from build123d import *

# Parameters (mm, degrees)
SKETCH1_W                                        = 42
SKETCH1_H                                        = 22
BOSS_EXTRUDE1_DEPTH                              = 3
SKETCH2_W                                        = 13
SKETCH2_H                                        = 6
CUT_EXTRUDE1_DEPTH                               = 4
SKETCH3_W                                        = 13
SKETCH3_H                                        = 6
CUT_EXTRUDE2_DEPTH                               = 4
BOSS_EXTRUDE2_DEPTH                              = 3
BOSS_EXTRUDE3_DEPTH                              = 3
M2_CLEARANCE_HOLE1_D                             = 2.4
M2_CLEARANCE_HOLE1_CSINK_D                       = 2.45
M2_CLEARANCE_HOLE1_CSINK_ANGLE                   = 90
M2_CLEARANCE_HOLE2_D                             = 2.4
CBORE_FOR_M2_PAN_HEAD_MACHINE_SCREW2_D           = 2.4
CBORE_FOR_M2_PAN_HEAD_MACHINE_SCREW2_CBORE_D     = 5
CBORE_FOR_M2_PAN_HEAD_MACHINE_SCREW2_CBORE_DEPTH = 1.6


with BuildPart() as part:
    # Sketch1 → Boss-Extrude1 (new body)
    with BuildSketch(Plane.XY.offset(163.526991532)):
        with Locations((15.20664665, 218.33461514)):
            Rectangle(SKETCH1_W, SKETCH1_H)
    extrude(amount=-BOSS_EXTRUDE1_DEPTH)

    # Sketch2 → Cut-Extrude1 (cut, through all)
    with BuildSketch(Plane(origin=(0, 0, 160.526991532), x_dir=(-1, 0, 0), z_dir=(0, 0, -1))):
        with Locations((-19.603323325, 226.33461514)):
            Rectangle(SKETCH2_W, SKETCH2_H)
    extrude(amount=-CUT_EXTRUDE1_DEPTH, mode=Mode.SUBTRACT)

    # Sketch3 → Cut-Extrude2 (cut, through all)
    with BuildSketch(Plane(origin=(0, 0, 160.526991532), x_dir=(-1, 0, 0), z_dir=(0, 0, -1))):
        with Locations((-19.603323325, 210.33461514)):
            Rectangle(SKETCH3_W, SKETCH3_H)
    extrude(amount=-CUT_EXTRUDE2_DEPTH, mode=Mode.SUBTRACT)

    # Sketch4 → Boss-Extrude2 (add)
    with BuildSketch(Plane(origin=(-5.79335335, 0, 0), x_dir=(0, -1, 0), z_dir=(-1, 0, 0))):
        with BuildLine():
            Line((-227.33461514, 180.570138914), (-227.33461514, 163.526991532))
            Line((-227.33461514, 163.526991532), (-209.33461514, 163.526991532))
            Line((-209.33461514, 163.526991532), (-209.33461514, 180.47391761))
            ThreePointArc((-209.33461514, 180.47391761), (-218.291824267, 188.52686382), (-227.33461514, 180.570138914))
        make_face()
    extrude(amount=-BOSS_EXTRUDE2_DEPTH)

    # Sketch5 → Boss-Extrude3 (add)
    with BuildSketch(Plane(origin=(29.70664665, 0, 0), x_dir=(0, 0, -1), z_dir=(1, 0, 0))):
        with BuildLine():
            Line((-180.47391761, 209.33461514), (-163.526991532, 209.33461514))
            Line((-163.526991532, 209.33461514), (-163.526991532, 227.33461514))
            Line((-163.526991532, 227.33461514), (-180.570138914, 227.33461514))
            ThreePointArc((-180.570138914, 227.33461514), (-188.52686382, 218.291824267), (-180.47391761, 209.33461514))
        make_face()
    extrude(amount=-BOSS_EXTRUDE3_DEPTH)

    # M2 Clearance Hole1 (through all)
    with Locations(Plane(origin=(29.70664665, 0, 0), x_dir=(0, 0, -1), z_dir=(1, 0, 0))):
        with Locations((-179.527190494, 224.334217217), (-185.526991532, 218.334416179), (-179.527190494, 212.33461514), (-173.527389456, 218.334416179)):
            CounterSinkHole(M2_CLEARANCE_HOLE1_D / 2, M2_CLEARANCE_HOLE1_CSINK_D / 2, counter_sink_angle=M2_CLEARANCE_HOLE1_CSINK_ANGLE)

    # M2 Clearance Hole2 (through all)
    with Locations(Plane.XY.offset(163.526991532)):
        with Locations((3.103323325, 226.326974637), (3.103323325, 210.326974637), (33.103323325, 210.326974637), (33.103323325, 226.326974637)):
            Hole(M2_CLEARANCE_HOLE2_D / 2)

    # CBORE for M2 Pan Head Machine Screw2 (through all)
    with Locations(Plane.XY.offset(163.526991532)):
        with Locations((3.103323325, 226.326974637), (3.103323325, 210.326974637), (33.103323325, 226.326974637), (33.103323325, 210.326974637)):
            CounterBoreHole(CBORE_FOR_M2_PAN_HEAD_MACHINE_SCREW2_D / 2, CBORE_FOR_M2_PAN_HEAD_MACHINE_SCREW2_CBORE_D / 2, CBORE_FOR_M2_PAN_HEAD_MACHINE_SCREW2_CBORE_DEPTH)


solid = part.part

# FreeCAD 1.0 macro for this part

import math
import FreeCAD as App
import Part
import Sketcher


def add_polygon(sketch, points):
    """Adds a closed chain of lines whose ends are joined by coincident constraints."""
    first, n = sketch.GeometryCount, len(points)
    for a, b in zip(points, points[1:] + points[:1]):
        sketch.addGeometry(Part.LineSegment(App.Vector(*a, 0), App.Vector(*b, 0)), False)
    for i in range(n):
        sketch.addConstraint(Sketcher.Constraint("Coincident", first + i, 2, first + (i + 1) % n, 1))

doc = App.newDocument("Part")
body = doc.addObject("PartDesign::Body", "Body")

# Sketch on XY plane
sketch1 = body.newObject("Sketcher::SketchObject", "Sketch")
sketch1.AttachmentSupport = (doc.getObject("XY_Plane"), [""])
sketch1.MapMode = "FlatFace"
sketch1.AttachmentOffset = App.Placement(App.Vector(0, 0, 163.526992), App.Rotation())
add_polygon(sketch1, [(-5.793353, 229.334615), (-5.793353, 207.334615), (36.206647, 207.334615), (36.206647, 229.334615)])  # lines 0-3
sketch1.addConstraint(Sketcher.Constraint("Vertical", 0))
sketch1.addConstraint(Sketcher.Constraint("Horizontal", 1))
sketch1.addConstraint(Sketcher.Constraint("Vertical", 2))
sketch1.addConstraint(Sketcher.Constraint("Horizontal", 3))
sketch1.addConstraint(Sketcher.Constraint("DistanceX", 1, 1, 1, 2, 42.0))
sketch1.addConstraint(Sketcher.Constraint("DistanceY", 0, 2, 0, 1, 22.0))
sketch1.addConstraint(Sketcher.Constraint("DistanceX", 0, 2, -1, 1, 5.793353))
sketch1.addConstraint(Sketcher.Constraint("DistanceY", -1, 1, 0, 2, 207.334615))
pad1 = body.newObject("PartDesign::Pad", "Pad")
pad1.Profile = sketch1
pad1.Length = 3
pad1.Reversed = True

# Sketch on XY plane
sketch2 = body.newObject("Sketcher::SketchObject", "Sketch001")
sketch2.AttachmentSupport = (doc.getObject("XY_Plane"), [""])
sketch2.MapMode = "FlatFace"
sketch2.AttachmentOffset = App.Placement(App.Vector(0, 0, 160.526992), App.Rotation())
add_polygon(sketch2, [(26.103323, 229.334615), (26.103323, 223.334615), (13.103323, 223.334615), (13.103323, 229.334615)])  # lines 0-3
sketch2.addConstraint(Sketcher.Constraint("Vertical", 0))
sketch2.addConstraint(Sketcher.Constraint("Horizontal", 1))
sketch2.addConstraint(Sketcher.Constraint("Vertical", 2))
sketch2.addConstraint(Sketcher.Constraint("Horizontal", 3))
sketch2.addConstraint(Sketcher.Constraint("DistanceX", 1, 2, 1, 1, 13.0))
sketch2.addConstraint(Sketcher.Constraint("DistanceY", 0, 2, 0, 1, 6.0))
sketch2.addConstraint(Sketcher.Constraint("DistanceX", -1, 1, 0, 2, 26.103323))
sketch2.addConstraint(Sketcher.Constraint("DistanceY", -1, 1, 0, 2, 223.334615))
pocket1 = body.newObject("PartDesign::Pocket", "Pocket")
pocket1.Profile = sketch2
pocket1.Type = "ThroughAll"
pocket1.Reversed = True

# Sketch on XY plane
sketch3 = body.newObject("Sketcher::SketchObject", "Sketch002")
sketch3.AttachmentSupport = (doc.getObject("XY_Plane"), [""])
sketch3.MapMode = "FlatFace"
sketch3.AttachmentOffset = App.Placement(App.Vector(0, 0, 160.526992), App.Rotation())
add_polygon(sketch3, [(26.103323, 213.334615), (26.103323, 207.334615), (13.103323, 207.334615), (13.103323, 213.334615)])  # lines 0-3
sketch3.addConstraint(Sketcher.Constraint("Vertical", 0))
sketch3.addConstraint(Sketcher.Constraint("Horizontal", 1))
sketch3.addConstraint(Sketcher.Constraint("Vertical", 2))
sketch3.addConstraint(Sketcher.Constraint("Horizontal", 3))
sketch3.addConstraint(Sketcher.Constraint("DistanceX", 1, 2, 1, 1, 13.0))
sketch3.addConstraint(Sketcher.Constraint("DistanceY", 0, 2, 0, 1, 6.0))
sketch3.addConstraint(Sketcher.Constraint("DistanceX", -1, 1, 0, 2, 26.103323))
sketch3.addConstraint(Sketcher.Constraint("DistanceY", -1, 1, 0, 2, 207.334615))
pocket2 = body.newObject("PartDesign::Pocket", "Pocket001")
pocket2.Profile = sketch3
pocket2.Type = "ThroughAll"
pocket2.Reversed = True

# Sketch on YZ plane
sketch4 = body.newObject("Sketcher::SketchObject", "Sketch003")
sketch4.AttachmentSupport = (doc.getObject("YZ_Plane"), [""])
sketch4.MapMode = "FlatFace"
sketch4.AttachmentOffset = App.Placement(App.Vector(0, 0, -5.793353), App.Rotation())
sketch4.addGeometry(Part.LineSegment(App.Vector(227.334615, 180.570139, 0), App.Vector(227.334615, 163.526992, 0)), False)
sketch4.addGeometry(Part.LineSegment(App.Vector(227.334615, 163.526992, 0), App.Vector(209.334615, 163.526992, 0)), False)
sketch4.addGeometry(Part.LineSegment(App.Vector(209.334615, 163.526992, 0), App.Vector(209.334615, 180.473918, 0)), False)
sketch4.addGeometry(Part.ArcOfCircle(Part.Circle(App.Vector(218.340266, 179.465004, 0), App.Vector(0, 0, 1), 9.061989), math.radians(7.004816), math.radians(173.607742)), False)
sketch4.addConstraint(Sketcher.Constraint("Coincident", 0, 2, 1, 1))
sketch4.addConstraint(Sketcher.Constraint("Coincident", 1, 2, 2, 1))
sketch4.addConstraint(Sketcher.Constraint("Coincident", 2, 2, 3, 2))
sketch4.addConstraint(Sketcher.Constraint("Coincident", 3, 1, 0, 1))
sketch4.addConstraint(Sketcher.Constraint("Vertical", 0))
sketch4.addConstraint(Sketcher.Constraint("Horizontal", 1))
sketch4.addConstraint(Sketcher.Constraint("Vertical", 2))
sketch4.addConstraint(Sketcher.Constraint("DistanceX", 1, 2, 1, 1, 18.0))
sketch4.addConstraint(Sketcher.Constraint("Radius", 3, 9.061989))
sketch4.addConstraint(Sketcher.Constraint("DistanceY", 0, 2, 0, 1, 17.043147))
sketch4.addConstraint(Sketcher.Constraint("DistanceY", 2, 1, 2, 2, 16.946926))
sketch4.addConstraint(Sketcher.Constraint("DistanceY", -1, 1, 0, 2, 163.526992))
sketch4.addConstraint(Sketcher.Constraint("DistanceX", -1, 1, 3, 3, 218.340266))
pad2 = body.newObject("PartDesign::Pad", "Pad001")
pad2.Profile = sketch4
pad2.Length = 3

# Sketch on YZ plane
sketch5 = body.newObject("Sketcher::SketchObject", "Sketch004")
sketch5.AttachmentSupport = (doc.getObject("YZ_Plane"), [""])
sketch5.MapMode = "FlatFace"
sketch5.AttachmentOffset = App.Placement(App.Vector(0, 0, 29.706647), App.Rotation())
sketch5.addGeometry(Part.LineSegment(App.Vector(209.334615, 180.473918, 0), App.Vector(209.334615, 163.526992, 0)), False)
sketch5.addGeometry(Part.LineSegment(App.Vector(209.334615, 163.526992, 0), App.Vector(227.334615, 163.526992, 0)), False)
sketch5.addGeometry(Part.LineSegment(App.Vector(227.334615, 163.526992, 0), App.Vector(227.334615, 180.570139, 0)), False)
sketch5.addGeometry(Part.ArcOfCircle(Part.Circle(App.Vector(218.340266, 179.465004, 0), App.Vector(0, 0, 1), 9.061989), math.radians(7.004816), math.radians(173.607742)), False)
sketch5.addConstraint(Sketcher.Constraint("Coincident", 0, 2, 1, 1))
sketch5.addConstraint(Sketcher.Constraint("Coincident", 1, 2, 2, 1))
sketch5.addConstraint(Sketcher.Constraint("Coincident", 2, 2, 3, 1))
sketch5.addConstraint(Sketcher.Constraint("Coincident", 3, 2, 0, 1))
sketch5.addConstraint(Sketcher.Constraint("Vertical", 0))
sketch5.addConstraint(Sketcher.Constraint("Horizontal", 1))
sketch5.addConstraint(Sketcher.Constraint("Vertical", 2))
sketch5.addConstraint(Sketcher.Constraint("DistanceX", 1, 1, 1, 2, 18.0))
sketch5.addConstraint(Sketcher.Constraint("Radius", 3, 9.061989))
sketch5.addConstraint(Sketcher.Constraint("DistanceY", 0, 2, 0, 1, 16.946926))
sketch5.addConstraint(Sketcher.Constraint("DistanceY", 2, 1, 2, 2, 17.043147))
sketch5.addConstraint(Sketcher.Constraint("DistanceY", -1, 1, 0, 2, 163.526992))
sketch5.addConstraint(Sketcher.Constraint("DistanceX", -1, 1, 3, 3, 218.340266))
pad3 = body.newObject("PartDesign::Pad", "Pad002")
pad3.Profile = sketch5
pad3.Length = 3
pad3.Reversed = True

# Sketch on YZ plane
sketch6 = body.newObject("Sketcher::SketchObject", "Sketch005")
sketch6.AttachmentSupport = (doc.getObject("YZ_Plane"), [""])
sketch6.MapMode = "FlatFace"
sketch6.AttachmentOffset = App.Placement(App.Vector(0, 0, 29.706647), App.Rotation())
sketch6.addGeometry(Part.Circle(App.Vector(224.334217, 179.52719, 0), App.Vector(0, 0, 1), 1.2), False)
sketch6.addGeometry(Part.Circle(App.Vector(218.334416, 185.526992, 0), App.Vector(0, 0, 1), 1.2), False)
sketch6.addGeometry(Part.Circle(App.Vector(212.334615, 179.52719, 0), App.Vector(0, 0, 1), 1.2), False)
sketch6.addGeometry(Part.Circle(App.Vector(218.334416, 173.527389, 0), App.Vector(0, 0, 1), 1.2), False)
sketch6.addConstraint(Sketcher.Constraint("Equal", 0, 1))
sketch6.addConstraint(Sketcher.Constraint("Equal", 1, 2))
sketch6.addConstraint(Sketcher.Constraint("Equal", 2, 3))
sketch6.addConstraint(Sketcher.Constraint("Horizontal", 0, 3, 2, 3))
sketch6.addConstraint(Sketcher.Constraint("Vertical", 1, 3, 3, 3))
sketch6.addConstraint(Sketcher.Constraint("Diameter", 0, 2.4))
sketch6.addConstraint(Sketcher.Constraint("DistanceX", 1, 3, 0, 3, 5.999801))
sketch6.addConstraint(Sketcher.Constraint("DistanceY", 0, 3, 1, 3, 5.999801))
sketch6.addConstraint(Sketcher.Constraint("DistanceX", 2, 3, 1, 3, 5.999801))
sketch6.addConstraint(Sketcher.Constraint("DistanceY", 3, 3, 0, 3, 5.999801))
sketch6.addConstraint(Sketcher.Constraint("DistanceY", -1, 1, 0, 3, 179.52719))
sketch6.addConstraint(Sketcher.Constraint("DistanceX", -1, 1, 0, 3, 224.334217))
doc.recompute()
hole = body.newObject("PartDesign::Hole", "Hole")
hole.Profile = sketch6
hole.ThreadType = "None"
hole.Diameter = 2.4
hole.DepthType = "ThroughAll"
hole.HoleCutType = "Countersink"
hole.HoleCutDiameter = 2.45
hole.HoleCutCountersinkAngle = 90

# Sketch on XY plane
sketch7 = body.newObject("Sketcher::SketchObject", "Sketch006")
sketch7.AttachmentSupport = (doc.getObject("XY_Plane"), [""])
sketch7.MapMode = "FlatFace"
sketch7.AttachmentOffset = App.Placement(App.Vector(0, 0, 163.526992), App.Rotation())
sketch7.addGeometry(Part.Circle(App.Vector(3.103323, 226.326975, 0), App.Vector(0, 0, 1), 1.2), False)
sketch7.addGeometry(Part.Circle(App.Vector(3.103323, 210.326975, 0), App.Vector(0, 0, 1), 1.2), False)
sketch7.addGeometry(Part.Circle(App.Vector(33.103323, 210.326975, 0), App.Vector(0, 0, 1), 1.2), False)
sketch7.addGeometry(Part.Circle(App.Vector(33.103323, 226.326975, 0), App.Vector(0, 0, 1), 1.2), False)
sketch7.addConstraint(Sketcher.Constraint("Equal", 0, 1))
sketch7.addConstraint(Sketcher.Constraint("Equal", 1, 2))
sketch7.addConstraint(Sketcher.Constraint("Equal", 2, 3))
sketch7.addConstraint(Sketcher.Constraint("Horizontal", 1, 3, 2, 3))
sketch7.addConstraint(Sketcher.Constraint("Horizontal", 0, 3, 3, 3))
sketch7.addConstraint(Sketcher.Constraint("Vertical", 0, 3, 1, 3))
sketch7.addConstraint(Sketcher.Constraint("Vertical", 2, 3, 3, 3))
sketch7.addConstraint(Sketcher.Constraint("Diameter", 0, 2.4))
sketch7.addConstraint(Sketcher.Constraint("DistanceY", 1, 3, 0, 3, 16.0))
sketch7.addConstraint(Sketcher.Constraint("DistanceX", 1, 3, 2, 3, 30.0))
sketch7.addConstraint(Sketcher.Constraint("DistanceX", -1, 1, 0, 3, 3.103323))
sketch7.addConstraint(Sketcher.Constraint("DistanceY", -1, 1, 0, 3, 226.326975))
doc.recompute()
hole2 = body.newObject("PartDesign::Hole", "Hole001")
hole2.Profile = sketch7
hole2.ThreadType = "None"
hole2.Diameter = 2.4
hole2.DepthType = "ThroughAll"

# Sketch on XY plane
sketch8 = body.newObject("Sketcher::SketchObject", "Sketch007")
sketch8.AttachmentSupport = (doc.getObject("XY_Plane"), [""])
sketch8.MapMode = "FlatFace"
sketch8.AttachmentOffset = App.Placement(App.Vector(0, 0, 163.526992), App.Rotation())
sketch8.addGeometry(Part.Circle(App.Vector(3.103323, 226.326975, 0), App.Vector(0, 0, 1), 1.2), False)
sketch8.addGeometry(Part.Circle(App.Vector(3.103323, 210.326975, 0), App.Vector(0, 0, 1), 1.2), False)
sketch8.addGeometry(Part.Circle(App.Vector(33.103323, 226.326975, 0), App.Vector(0, 0, 1), 1.2), False)
sketch8.addGeometry(Part.Circle(App.Vector(33.103323, 210.326975, 0), App.Vector(0, 0, 1), 1.2), False)
sketch8.addConstraint(Sketcher.Constraint("Equal", 0, 1))
sketch8.addConstraint(Sketcher.Constraint("Equal", 1, 2))
sketch8.addConstraint(Sketcher.Constraint("Equal", 2, 3))
sketch8.addConstraint(Sketcher.Constraint("Horizontal", 0, 3, 2, 3))
sketch8.addConstraint(Sketcher.Constraint("Horizontal", 1, 3, 3, 3))
sketch8.addConstraint(Sketcher.Constraint("Vertical", 0, 3, 1, 3))
sketch8.addConstraint(Sketcher.Constraint("Vertical", 2, 3, 3, 3))
sketch8.addConstraint(Sketcher.Constraint("Diameter", 0, 2.4))
sketch8.addConstraint(Sketcher.Constraint("DistanceY", 1, 3, 0, 3, 16.0))
sketch8.addConstraint(Sketcher.Constraint("DistanceX", 0, 3, 2, 3, 30.0))
sketch8.addConstraint(Sketcher.Constraint("DistanceX", -1, 1, 0, 3, 3.103323))
sketch8.addConstraint(Sketcher.Constraint("DistanceY", -1, 1, 0, 3, 226.326975))
doc.recompute()
hole3 = body.newObject("PartDesign::Hole", "Hole002")
hole3.Profile = sketch8
hole3.ThreadType = "None"
hole3.Diameter = 2.4
hole3.DepthType = "ThroughAll"
hole3.HoleCutType = "Counterbore"
hole3.HoleCutDiameter = 5
hole3.HoleCutDepth = 1.6

doc.recompute()
